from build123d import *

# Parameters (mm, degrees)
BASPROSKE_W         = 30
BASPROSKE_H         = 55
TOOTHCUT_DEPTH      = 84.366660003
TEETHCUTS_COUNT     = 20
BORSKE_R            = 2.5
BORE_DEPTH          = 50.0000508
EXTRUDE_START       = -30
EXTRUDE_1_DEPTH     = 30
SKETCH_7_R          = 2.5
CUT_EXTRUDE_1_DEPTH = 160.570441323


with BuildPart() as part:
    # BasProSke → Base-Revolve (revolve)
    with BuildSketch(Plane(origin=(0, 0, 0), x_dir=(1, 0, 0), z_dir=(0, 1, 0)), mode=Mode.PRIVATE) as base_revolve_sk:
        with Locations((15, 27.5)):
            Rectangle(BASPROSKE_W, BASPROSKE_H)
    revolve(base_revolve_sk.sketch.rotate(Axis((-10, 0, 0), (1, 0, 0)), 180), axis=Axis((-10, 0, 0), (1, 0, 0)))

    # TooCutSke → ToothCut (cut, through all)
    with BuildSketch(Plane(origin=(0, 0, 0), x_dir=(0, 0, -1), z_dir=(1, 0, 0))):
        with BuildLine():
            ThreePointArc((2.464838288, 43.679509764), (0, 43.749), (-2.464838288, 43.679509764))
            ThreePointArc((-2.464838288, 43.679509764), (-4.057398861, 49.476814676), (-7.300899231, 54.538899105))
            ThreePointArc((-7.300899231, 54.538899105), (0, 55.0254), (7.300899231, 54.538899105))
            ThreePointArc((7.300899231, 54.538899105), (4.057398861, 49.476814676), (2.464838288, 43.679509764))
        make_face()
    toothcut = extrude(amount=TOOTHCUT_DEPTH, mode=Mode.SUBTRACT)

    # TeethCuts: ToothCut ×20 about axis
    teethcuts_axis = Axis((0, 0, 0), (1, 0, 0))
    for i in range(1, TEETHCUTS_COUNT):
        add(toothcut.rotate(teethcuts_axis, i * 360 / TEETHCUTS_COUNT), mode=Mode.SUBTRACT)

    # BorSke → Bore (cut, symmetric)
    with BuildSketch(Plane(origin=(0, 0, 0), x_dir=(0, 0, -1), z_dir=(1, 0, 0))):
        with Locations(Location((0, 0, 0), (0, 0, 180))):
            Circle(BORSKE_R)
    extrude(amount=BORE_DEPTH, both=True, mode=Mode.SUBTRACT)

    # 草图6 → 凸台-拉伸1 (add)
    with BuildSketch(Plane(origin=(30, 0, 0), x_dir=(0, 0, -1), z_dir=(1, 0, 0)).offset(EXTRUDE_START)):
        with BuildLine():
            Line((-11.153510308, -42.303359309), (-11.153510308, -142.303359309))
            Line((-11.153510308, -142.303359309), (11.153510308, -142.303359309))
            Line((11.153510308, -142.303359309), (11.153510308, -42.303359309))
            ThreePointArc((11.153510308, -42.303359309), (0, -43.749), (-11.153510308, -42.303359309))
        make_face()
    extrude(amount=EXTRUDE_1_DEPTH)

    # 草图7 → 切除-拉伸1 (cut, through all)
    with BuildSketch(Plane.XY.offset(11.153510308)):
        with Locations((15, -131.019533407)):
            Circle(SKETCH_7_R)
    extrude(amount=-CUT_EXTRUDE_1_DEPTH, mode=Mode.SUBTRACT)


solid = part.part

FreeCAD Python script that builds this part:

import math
import FreeCAD as App
import Part
import Sketcher

V = App.Vector

doc = App.newDocument("Part")
body = doc.addObject("PartDesign::Body", "Body")

# Sketch on XZ plane
sketch1 = doc.addObject("Sketcher::SketchObject", "Sketch")
body.addObject(sketch1)
sketch1.AttachmentSupport = (doc.XZ_Plane, [""])
sketch1.MapMode = "FlatFace"
sketch1.addGeometry([
    Part.LineSegment(V(0, -55, 0), V(0, 0, 0)),
    Part.LineSegment(V(0, 0, 0), V(30, 0, 0)),
    Part.LineSegment(V(30, 0, 0), V(30, -55, 0)),
    Part.LineSegment(V(30, -55, 0), V(0, -55, 0)),
], False)
sketch1.addConstraint([
    Sketcher.Constraint("Coincident", 0, 2, 1, 1),
    Sketcher.Constraint("Coincident", 1, 2, 2, 1),
    Sketcher.Constraint("Coincident", 2, 2, 3, 1),
    Sketcher.Constraint("Coincident", 3, 2, 0, 1),
    Sketcher.Constraint("Vertical", 0),
    Sketcher.Constraint("Horizontal", 1),
    Sketcher.Constraint("Vertical", 2),
    Sketcher.Constraint("Horizontal", 3),
    Sketcher.Constraint("Coincident", 0, 2, -1, 1),
    Sketcher.Constraint("DistanceX", 1, 1, 1, 2, 30.0),
    Sketcher.Constraint("DistanceY", 0, 1, 0, 2, 55.0),
])
revolution = doc.addObject("PartDesign::Revolution", "Revolution")
body.addObject(revolution)
revolution.Profile = sketch1
revolution.ReferenceAxis = (sketch1, ["H_Axis"])
revolution.Angle = 360

# Sketch on YZ plane
sketch2 = doc.addObject("Sketcher::SketchObject", "Sketch001")
body.addObject(sketch2)
sketch2.AttachmentSupport = (doc.YZ_Plane, [""])
sketch2.MapMode = "FlatFace"
sketch2.addGeometry([
    Part.ArcOfCircle(Part.Circle(V(0, 0, 0), V(0, 0, 1), 43.7), math.radians(-3.23), math.radians(3.23)),
    Part.ArcOfCircle(Part.Circle(V(41.3, -22.3, 0), V(0, 0, 1), 20), math.radians(49), math.radians(83)),
    Part.ArcOfCircle(Part.Circle(V(0, 0, 0), V(0, 0, 1), 55), math.radians(-7.62), math.radians(7.62)),
    Part.ArcOfCircle(Part.Circle(V(41.3, 22.3, 0), V(0, 0, 1), 20), math.radians(-83), math.radians(-49)),
], False)
sketch2.addConstraint([
    Sketcher.Constraint("Coincident", 0, 1, 1, 2),
    Sketcher.Constraint("Coincident", 1, 1, 2, 1),
    Sketcher.Constraint("Coincident", 2, 2, 3, 2),
    Sketcher.Constraint("Coincident", 3, 1, 0, 2),
    Sketcher.Constraint("Coincident", 0, 3, -1, 1),
    Sketcher.Constraint("Coincident", 2, 3, -1, 1),
    Sketcher.Constraint("Equal", 1, 3),
    Sketcher.Constraint("Symmetric", 1, 3, 3, 3, -1),
    Sketcher.Constraint("Radius", 1, 20.0),
    Sketcher.Constraint("Radius", 0, 43.749),
    Sketcher.Constraint("Radius", 2, 55.0254),
    Sketcher.Constraint("DistanceX", -1, 1, 1, 1, 54.538899),
    Sketcher.Constraint("DistanceX", -1, 1, 1, 3, 41.340468),
])
pocket1 = doc.addObject("PartDesign::Pocket", "Pocket")
body.addObject(pocket1)
pocket1.Profile = sketch2
pocket1.Type = "ThroughAll"
pocket1.Reversed = True
doc.recompute()

polarpattern = doc.addObject("PartDesign::PolarPattern", "PolarPattern")
body.addObject(polarpattern)
polarpattern.Originals = [pocket1]
polarpattern.Axis = (doc.X_Axis, [""])
polarpattern.Angle = 360
polarpattern.Occurrences = 20
body.Tip = polarpattern

# Sketch on YZ plane
sketch3 = doc.addObject("Sketcher::SketchObject", "Sketch002")
body.addObject(sketch3)
sketch3.AttachmentSupport = (doc.YZ_Plane, [""])
sketch3.MapMode = "FlatFace"
sketch3.addGeometry(Part.Circle(V(0, 0, 0), V(0, 0, 1), 2.5), False)
sketch3.addConstraint([
    Sketcher.Constraint("Coincident", 0, 3, -1, 1),
    Sketcher.Constraint("Diameter", 0, 5.0),
])
pocket2 = doc.addObject("PartDesign::Pocket", "Pocket001")
body.addObject(pocket2)
pocket2.Profile = sketch3
pocket2.Length = 100.000102
pocket2.Midplane = True

# Sketch on YZ plane
sketch4 = doc.addObject("Sketcher::SketchObject", "Sketch003")
body.addObject(sketch4)
sketch4.AttachmentSupport = (doc.YZ_Plane, [""])
sketch4.MapMode = "FlatFace"
sketch4.addGeometry([
    Part.LineSegment(V(-42, 11, 0), V(-142, 11, 0)),
    Part.LineSegment(V(-142, 11, 0), V(-142, -11, 0)),
    Part.LineSegment(V(-142, -11, 0), V(-42, -11, 0)),
    Part.ArcOfCircle(Part.Circle(V(0, 0, 0), V(0, 0, 1), 44), math.radians(165), math.radians(195)),
], False)
sketch4.addConstraint([
    Sketcher.Constraint("Coincident", 0, 2, 1, 1),
    Sketcher.Constraint("Coincident", 1, 2, 2, 1),
    Sketcher.Constraint("Coincident", 2, 2, 3, 2),
    Sketcher.Constraint("Coincident", 3, 1, 0, 1),
    Sketcher.Constraint("Horizontal", 0),
    Sketcher.Constraint("Vertical", 1),
    Sketcher.Constraint("Horizontal", 2),
    Sketcher.Constraint("Coincident", 3, 3, -1, 1),
    Sketcher.Constraint("Vertical", 2, 2, 3, 1),
    Sketcher.Constraint("DistanceX", 0, 2, 0, 1, 100.0),
    Sketcher.Constraint("Radius", 3, 43.749),
    Sketcher.Constraint("DistanceY", 1, 2, 1, 1, 22.307021),
])
pad1 = doc.addObject("PartDesign::Pad", "Pad")
body.addObject(pad1)
pad1.Profile = sketch4
pad1.Length = 30

# Sketch on XY plane
sketch5 = doc.addObject("Sketcher::SketchObject", "Sketch004")
body.addObject(sketch5)
sketch5.AttachmentSupport = (doc.XY_Plane, [""])
sketch5.MapMode = "FlatFace"
sketch5.AttachmentOffset = App.Placement(V(0, 0, 11.15351), App.Rotation())
sketch5.addGeometry(Part.Circle(V(15, -131, 0), V(0, 0, 1), 2.5), False)
sketch5.addConstraint([
    Sketcher.Constraint("Diameter", 0, 5.0),
    Sketcher.Constraint("DistanceX", -1, 1, 0, 3, 15.0),
    Sketcher.Constraint("DistanceY", 0, 3, -1, 1, 131.019533),
])
pocket3 = doc.addObject("PartDesign::Pocket", "Pocket002")
body.addObject(pocket3)
pocket3.Profile = sketch5
pocket3.Type = "ThroughAll"

doc.recompute()
